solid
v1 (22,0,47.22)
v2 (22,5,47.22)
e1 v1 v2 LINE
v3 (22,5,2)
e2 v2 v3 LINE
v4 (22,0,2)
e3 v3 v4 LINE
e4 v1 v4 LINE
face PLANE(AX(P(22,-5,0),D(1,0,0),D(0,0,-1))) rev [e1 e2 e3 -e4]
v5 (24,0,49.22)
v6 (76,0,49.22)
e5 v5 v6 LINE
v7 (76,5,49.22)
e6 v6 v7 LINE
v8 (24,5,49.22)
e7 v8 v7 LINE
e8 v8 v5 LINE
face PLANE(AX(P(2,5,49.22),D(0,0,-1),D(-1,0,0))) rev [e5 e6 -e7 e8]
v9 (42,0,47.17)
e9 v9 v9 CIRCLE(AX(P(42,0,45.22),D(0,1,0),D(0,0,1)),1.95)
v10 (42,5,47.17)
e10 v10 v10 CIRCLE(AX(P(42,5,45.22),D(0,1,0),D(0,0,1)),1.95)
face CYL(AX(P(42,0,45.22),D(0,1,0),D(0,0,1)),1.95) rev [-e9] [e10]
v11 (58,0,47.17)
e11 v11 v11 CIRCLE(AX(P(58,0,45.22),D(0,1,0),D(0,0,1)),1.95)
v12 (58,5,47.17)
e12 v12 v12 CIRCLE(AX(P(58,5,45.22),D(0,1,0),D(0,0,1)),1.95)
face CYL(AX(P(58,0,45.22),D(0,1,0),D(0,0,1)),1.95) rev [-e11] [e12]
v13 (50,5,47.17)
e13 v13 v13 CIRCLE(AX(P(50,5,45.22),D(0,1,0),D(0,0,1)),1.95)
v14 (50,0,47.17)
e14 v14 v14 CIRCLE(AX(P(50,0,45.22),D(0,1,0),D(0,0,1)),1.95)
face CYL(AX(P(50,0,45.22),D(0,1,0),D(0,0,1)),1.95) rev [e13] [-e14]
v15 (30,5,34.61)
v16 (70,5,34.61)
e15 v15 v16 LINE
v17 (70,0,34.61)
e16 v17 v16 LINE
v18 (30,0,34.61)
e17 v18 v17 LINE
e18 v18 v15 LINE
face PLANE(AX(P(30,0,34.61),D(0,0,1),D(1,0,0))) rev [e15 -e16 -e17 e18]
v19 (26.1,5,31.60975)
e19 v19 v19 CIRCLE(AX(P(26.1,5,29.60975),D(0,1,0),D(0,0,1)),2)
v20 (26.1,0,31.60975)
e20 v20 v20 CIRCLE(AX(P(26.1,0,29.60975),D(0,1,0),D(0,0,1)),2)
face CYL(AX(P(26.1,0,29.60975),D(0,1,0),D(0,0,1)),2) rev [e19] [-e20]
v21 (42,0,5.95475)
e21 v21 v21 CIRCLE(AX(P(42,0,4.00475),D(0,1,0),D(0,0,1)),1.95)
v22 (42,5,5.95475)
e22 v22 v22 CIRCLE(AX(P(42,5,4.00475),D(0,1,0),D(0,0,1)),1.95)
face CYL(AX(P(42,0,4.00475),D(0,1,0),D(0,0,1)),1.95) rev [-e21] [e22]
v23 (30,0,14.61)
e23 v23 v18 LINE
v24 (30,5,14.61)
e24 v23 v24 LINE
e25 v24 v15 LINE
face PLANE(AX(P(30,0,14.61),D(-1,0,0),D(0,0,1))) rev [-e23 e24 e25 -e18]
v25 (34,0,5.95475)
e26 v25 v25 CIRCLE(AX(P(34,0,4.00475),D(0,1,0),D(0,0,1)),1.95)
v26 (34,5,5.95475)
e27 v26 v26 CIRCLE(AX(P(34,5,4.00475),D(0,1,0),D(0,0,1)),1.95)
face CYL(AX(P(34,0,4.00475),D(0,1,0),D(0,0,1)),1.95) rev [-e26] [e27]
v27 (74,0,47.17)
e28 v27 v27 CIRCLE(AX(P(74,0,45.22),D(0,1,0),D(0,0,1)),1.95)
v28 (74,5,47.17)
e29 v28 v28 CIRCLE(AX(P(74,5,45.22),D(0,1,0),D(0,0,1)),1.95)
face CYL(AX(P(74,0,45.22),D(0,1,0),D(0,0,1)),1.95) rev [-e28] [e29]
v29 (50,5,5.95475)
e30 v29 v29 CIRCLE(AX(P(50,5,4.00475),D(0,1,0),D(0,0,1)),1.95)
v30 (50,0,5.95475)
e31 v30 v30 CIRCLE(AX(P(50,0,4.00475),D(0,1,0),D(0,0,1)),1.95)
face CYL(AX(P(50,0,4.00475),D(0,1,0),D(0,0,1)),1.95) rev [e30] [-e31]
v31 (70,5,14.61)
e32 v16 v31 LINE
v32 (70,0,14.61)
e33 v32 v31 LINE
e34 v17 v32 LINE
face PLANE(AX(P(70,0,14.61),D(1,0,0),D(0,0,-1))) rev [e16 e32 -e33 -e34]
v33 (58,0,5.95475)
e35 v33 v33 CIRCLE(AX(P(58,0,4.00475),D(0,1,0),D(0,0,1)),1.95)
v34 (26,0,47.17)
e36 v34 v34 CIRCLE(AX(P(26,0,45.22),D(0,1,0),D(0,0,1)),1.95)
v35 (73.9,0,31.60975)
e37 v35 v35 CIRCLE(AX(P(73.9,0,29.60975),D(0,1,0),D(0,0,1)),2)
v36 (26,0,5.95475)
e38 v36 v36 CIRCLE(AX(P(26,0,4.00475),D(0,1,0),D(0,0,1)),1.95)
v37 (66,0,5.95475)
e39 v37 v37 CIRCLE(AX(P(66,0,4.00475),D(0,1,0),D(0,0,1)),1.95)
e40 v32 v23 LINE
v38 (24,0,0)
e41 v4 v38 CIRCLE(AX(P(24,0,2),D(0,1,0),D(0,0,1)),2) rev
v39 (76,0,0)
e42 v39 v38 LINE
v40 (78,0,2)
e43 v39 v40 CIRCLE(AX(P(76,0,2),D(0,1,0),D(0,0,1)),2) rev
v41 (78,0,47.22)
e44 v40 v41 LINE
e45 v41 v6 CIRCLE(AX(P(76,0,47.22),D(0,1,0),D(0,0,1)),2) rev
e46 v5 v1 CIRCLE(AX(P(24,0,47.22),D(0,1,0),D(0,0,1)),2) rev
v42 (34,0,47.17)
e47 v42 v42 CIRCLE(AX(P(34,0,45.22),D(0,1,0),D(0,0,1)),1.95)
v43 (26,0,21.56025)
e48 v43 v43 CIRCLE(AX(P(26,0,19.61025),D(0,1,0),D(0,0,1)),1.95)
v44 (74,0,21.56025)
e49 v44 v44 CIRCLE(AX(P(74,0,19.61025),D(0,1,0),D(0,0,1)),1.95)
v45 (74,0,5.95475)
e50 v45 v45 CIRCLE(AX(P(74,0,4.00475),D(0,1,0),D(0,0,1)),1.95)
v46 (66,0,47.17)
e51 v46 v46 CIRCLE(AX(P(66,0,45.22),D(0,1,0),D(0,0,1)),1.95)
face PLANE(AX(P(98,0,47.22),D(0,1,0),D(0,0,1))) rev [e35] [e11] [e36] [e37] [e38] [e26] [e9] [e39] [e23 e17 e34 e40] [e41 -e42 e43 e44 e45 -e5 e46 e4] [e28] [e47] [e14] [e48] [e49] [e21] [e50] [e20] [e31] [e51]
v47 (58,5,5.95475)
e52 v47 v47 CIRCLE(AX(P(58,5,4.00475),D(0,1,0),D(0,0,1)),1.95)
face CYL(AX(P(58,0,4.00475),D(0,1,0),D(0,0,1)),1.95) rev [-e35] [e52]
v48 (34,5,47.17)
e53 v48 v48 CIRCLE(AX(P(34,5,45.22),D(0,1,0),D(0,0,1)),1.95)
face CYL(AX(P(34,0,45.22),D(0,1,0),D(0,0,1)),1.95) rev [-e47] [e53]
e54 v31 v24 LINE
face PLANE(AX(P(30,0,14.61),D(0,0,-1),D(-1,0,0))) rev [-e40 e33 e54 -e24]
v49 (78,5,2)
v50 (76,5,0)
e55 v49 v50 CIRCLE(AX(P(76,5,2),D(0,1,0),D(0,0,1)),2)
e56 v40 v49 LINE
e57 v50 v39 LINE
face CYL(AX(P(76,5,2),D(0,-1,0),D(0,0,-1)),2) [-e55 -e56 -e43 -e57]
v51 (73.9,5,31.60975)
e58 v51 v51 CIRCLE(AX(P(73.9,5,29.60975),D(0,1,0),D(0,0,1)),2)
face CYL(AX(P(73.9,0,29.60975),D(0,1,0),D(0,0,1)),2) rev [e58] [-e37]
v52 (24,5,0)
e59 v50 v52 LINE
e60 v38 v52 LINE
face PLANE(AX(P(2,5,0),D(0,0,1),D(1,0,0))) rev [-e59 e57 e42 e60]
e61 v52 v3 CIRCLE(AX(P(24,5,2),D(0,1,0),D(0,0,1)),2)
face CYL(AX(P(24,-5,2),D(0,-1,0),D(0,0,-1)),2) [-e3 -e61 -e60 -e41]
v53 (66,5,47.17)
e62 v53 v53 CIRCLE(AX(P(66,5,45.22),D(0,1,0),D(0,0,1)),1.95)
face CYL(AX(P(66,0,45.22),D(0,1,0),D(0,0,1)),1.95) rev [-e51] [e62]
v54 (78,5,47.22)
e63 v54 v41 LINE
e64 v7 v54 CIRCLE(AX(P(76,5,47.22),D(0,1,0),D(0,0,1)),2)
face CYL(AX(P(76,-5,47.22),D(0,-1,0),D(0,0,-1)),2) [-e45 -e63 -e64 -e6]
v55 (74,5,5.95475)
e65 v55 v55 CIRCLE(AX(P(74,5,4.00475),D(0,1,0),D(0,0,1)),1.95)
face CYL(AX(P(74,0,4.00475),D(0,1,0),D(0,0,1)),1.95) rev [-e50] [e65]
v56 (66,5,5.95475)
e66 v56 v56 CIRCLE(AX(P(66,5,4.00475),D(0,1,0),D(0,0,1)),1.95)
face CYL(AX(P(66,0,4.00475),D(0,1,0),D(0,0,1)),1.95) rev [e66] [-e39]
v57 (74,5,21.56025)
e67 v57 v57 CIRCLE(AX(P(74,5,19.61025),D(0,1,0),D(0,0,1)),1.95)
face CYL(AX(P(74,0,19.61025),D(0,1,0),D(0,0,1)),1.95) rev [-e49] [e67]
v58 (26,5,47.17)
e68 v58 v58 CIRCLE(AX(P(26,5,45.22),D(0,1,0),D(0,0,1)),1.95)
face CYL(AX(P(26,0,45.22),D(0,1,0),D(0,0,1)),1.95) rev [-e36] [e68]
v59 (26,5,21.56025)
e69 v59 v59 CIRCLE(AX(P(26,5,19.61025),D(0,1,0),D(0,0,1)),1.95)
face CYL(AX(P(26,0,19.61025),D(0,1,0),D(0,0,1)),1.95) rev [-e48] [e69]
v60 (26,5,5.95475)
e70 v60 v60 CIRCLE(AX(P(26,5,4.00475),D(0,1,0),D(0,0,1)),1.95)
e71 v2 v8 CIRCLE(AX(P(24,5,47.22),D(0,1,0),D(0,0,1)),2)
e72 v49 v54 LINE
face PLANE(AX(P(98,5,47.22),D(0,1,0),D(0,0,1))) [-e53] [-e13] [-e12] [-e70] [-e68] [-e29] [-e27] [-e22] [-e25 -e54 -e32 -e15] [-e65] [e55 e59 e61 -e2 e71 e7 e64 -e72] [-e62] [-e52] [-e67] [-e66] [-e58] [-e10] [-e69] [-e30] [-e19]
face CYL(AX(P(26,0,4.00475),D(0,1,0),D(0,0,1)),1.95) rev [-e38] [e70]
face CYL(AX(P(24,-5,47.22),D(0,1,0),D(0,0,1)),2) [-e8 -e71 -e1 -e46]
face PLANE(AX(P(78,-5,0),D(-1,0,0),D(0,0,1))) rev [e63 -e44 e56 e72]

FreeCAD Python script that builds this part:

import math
import FreeCAD as App
import Part
import Sketcher
from FreeCAD import Vector
Q = App.Units.Quantity


def edges_at(feature, points):
    """Names of the edges that pass closest to the given points."""
    edges = feature.Shape.Edges
    near = lambda p: min(range(len(edges)), key=lambda i: edges[i].distToShape(Part.Vertex(*p))[0])
    return sorted({f"Edge{near(p) + 1}" for p in points})


def add_polygon(sketch, points):
    """Adds a closed chain of lines whose ends are joined by coincident constraints."""
    first, n = sketch.GeometryCount, len(points)
    for a, b in zip(points, points[1:] + points[:1]):
        sketch.addGeometry(Part.LineSegment(App.Vector(*a, 0), App.Vector(*b, 0)), False)
    for i in range(n):
        sketch.addConstraint(Sketcher.Constraint("Coincident", first + i, 2, first + (i + 1) % n, 1))

doc = App.newDocument("Part")
body = doc.addObject("PartDesign::Body", "Body")

# Sketch on XZ plane
sketch1 = body.newObject("Sketcher::SketchObject", "Sketch")
sketch1.AttachmentSupport = (doc.getObject("XZ_Plane"), [""])
sketch1.MapMode = "FlatFace"
sketch1.addGeometry([
    Part.LineSegment(Vector(98, 0, 0), Vector(2, 0, 0)),  # 0
    Part.ArcOfCircle(Part.Circle(Vector(2, 2, 0), Vector(0, 0, 1), 2), math.radians(-180), math.radians(-90)),  # 1
    Part.LineSegment(Vector(0, 2, 0), Vector(0, 47.22, 0)),  # 2
    Part.ArcOfCircle(Part.Circle(Vector(2, 47.22, 0), Vector(0, 0, 1), 2), math.radians(90), math.radians(180)),  # 3
    Part.LineSegment(Vector(2, 49.22, 0), Vector(98, 49.22, 0)),  # 4
    Part.ArcOfCircle(Part.Circle(Vector(98, 47.22, 0), Vector(0, 0, 1), 2), math.radians(0), math.radians(90)),  # 5
    Part.LineSegment(Vector(100, 47.22, 0), Vector(100, 2, 0)),  # 6
    Part.ArcOfCircle(Part.Circle(Vector(98, 2, 0), Vector(0, 0, 1), 2), math.radians(-90), math.radians(0)),  # 7
], False)
sketch1.addConstraint([
    Sketcher.Constraint("Tangent", 0, 2, 1, 2),
    Sketcher.Constraint("Tangent", 1, 1, 2, 1),
    Sketcher.Constraint("Tangent", 2, 2, 3, 2),
    Sketcher.Constraint("Tangent", 3, 1, 4, 1),
    Sketcher.Constraint("Tangent", 4, 2, 5, 2),
    Sketcher.Constraint("Tangent", 5, 1, 6, 1),
    Sketcher.Constraint("Tangent", 6, 2, 7, 2),
    Sketcher.Constraint("Tangent", 7, 1, 0, 1),
    Sketcher.Constraint("Horizontal", 0),
    Sketcher.Constraint("Vertical", 2),
    Sketcher.Constraint("Horizontal", 4),
    Sketcher.Constraint("Vertical", 6),
    Sketcher.Constraint("Equal", 1, 3),
    Sketcher.Constraint("Equal", 3, 5),
    Sketcher.Constraint("Equal", 5, 7),
    Sketcher.Constraint("PointOnObject", 0, 2, -1),
    Sketcher.Constraint("PointOnObject", 1, 1, -2),
    Sketcher.Constraint("Radius", 1, Q("2 mm")),
    Sketcher.Constraint("DistanceX", 0, 2, 0, 1, Q("96 mm")),
    Sketcher.Constraint("DistanceY", 2, 1, 2, 2, Q("45.22 mm")),
])
pad1 = body.newObject("PartDesign::Pad", "Pad")
pad1.Profile = sketch1
pad1.Length = 5
pad1.Reversed = True

# Sketch on XZ plane
sketch2 = body.newObject("Sketcher::SketchObject", "Sketch001")
sketch2.AttachmentSupport = (doc.getObject("XZ_Plane"), [""])
sketch2.MapMode = "FlatFace"
sketch2.AttachmentOffset = App.Placement(Vector(0, 0, -5), App.Rotation())
sketch2.addGeometry(Part.Circle(Vector(90, 4.00475, 0), Vector(0, 0, 1), 1.95), False)  # 0
sketch2.addGeometry(Part.Circle(Vector(82, 4.00475, 0), Vector(0, 0, 1), 1.95), False)  # 1
sketch2.addGeometry(Part.Circle(Vector(18, 4.00475, 0), Vector(0, 0, 1), 1.95), False)  # 2
sketch2.addGeometry(Part.Circle(Vector(26, 4.00475, 0), Vector(0, 0, 1), 1.95), False)  # 3
sketch2.addGeometry(Part.Circle(Vector(34, 4.00475, 0), Vector(0, 0, 1), 1.95), False)  # 4
sketch2.addGeometry(Part.Circle(Vector(42, 4.00475, 0), Vector(0, 0, 1), 1.95), False)  # 5
sketch2.addGeometry(Part.Circle(Vector(50, 4.00475, 0), Vector(0, 0, 1), 1.95), False)  # 6
sketch2.addGeometry(Part.Circle(Vector(58, 4.00475, 0), Vector(0, 0, 1), 1.95), False)  # 7
sketch2.addGeometry(Part.Circle(Vector(66, 4.00475, 0), Vector(0, 0, 1), 1.95), False)  # 8
sketch2.addGeometry(Part.Circle(Vector(74, 4.00475, 0), Vector(0, 0, 1), 1.95), False)  # 9
sketch2.addGeometry(Part.Circle(Vector(90, 45.22, 0), Vector(0, 0, 1), 1.95), False)  # 10
sketch2.addGeometry(Part.Circle(Vector(82, 45.22, 0), Vector(0, 0, 1), 1.95), False)  # 11
sketch2.addGeometry(Part.Circle(Vector(18, 45.22, 0), Vector(0, 0, 1), 1.95), False)  # 12
sketch2.addGeometry(Part.Circle(Vector(26, 45.22, 0), Vector(0, 0, 1), 1.95), False)  # 13
sketch2.addGeometry(Part.Circle(Vector(34, 45.22, 0), Vector(0, 0, 1), 1.95), False)  # 14
sketch2.addGeometry(Part.Circle(Vector(42, 45.22, 0), Vector(0, 0, 1), 1.95), False)  # 15
sketch2.addGeometry(Part.Circle(Vector(50, 45.22, 0), Vector(0, 0, 1), 1.95), False)  # 16
sketch2.addGeometry(Part.Circle(Vector(58, 45.22, 0), Vector(0, 0, 1), 1.95), False)  # 17
sketch2.addGeometry(Part.Circle(Vector(66, 45.22, 0), Vector(0, 0, 1), 1.95), False)  # 18
sketch2.addGeometry(Part.Circle(Vector(74, 45.22, 0), Vector(0, 0, 1), 1.95), False)  # 19
add_polygon(sketch2, [(30, 14.61), (30, 34.61), (70, 34.61), (70, 14.61)])  # lines 20-23
sketch2.addConstraint([
    Sketcher.Constraint("Vertical", 20),
    Sketcher.Constraint("Horizontal", 21),
    Sketcher.Constraint("Vertical", 22),
    Sketcher.Constraint("Horizontal", 23),
    Sketcher.Constraint("Equal", 0, 1),
    Sketcher.Constraint("Equal", 1, 2),
    Sketcher.Constraint("Equal", 2, 3),
    Sketcher.Constraint("Equal", 3, 4),
    Sketcher.Constraint("Equal", 4, 5),
    Sketcher.Constraint("Equal", 5, 6),
    Sketcher.Constraint("Equal", 6, 7),
    Sketcher.Constraint("Equal", 7, 8),
    Sketcher.Constraint("Equal", 8, 9),
    Sketcher.Constraint("Equal", 9, 10),
    Sketcher.Constraint("Equal", 10, 11),
    Sketcher.Constraint("Equal", 11, 12),
    Sketcher.Constraint("Equal", 12, 13),
    Sketcher.Constraint("Equal", 13, 14),
    Sketcher.Constraint("Equal", 14, 15),
    Sketcher.Constraint("Equal", 15, 16),
    Sketcher.Constraint("Equal", 16, 17),
    Sketcher.Constraint("Equal", 17, 18),
    Sketcher.Constraint("Equal", 18, 19),
    Sketcher.Constraint("Horizontal", 0, 3, 1, 3),
    Sketcher.Constraint("Horizontal", 1, 3, 2, 3),
    Sketcher.Constraint("Horizontal", 2, 3, 3, 3),
    Sketcher.Constraint("Horizontal", 3, 3, 4, 3),
    Sketcher.Constraint("Horizontal", 4, 3, 5, 3),
    Sketcher.Constraint("Horizontal", 5, 3, 6, 3),
    Sketcher.Constraint("Horizontal", 6, 3, 7, 3),
    Sketcher.Constraint("Horizontal", 7, 3, 8, 3),
    Sketcher.Constraint("Horizontal", 8, 3, 9, 3),
    Sketcher.Constraint("Horizontal", 10, 3, 11, 3),
    Sketcher.Constraint("Horizontal", 11, 3, 12, 3),
    Sketcher.Constraint("Horizontal", 12, 3, 13, 3),
    Sketcher.Constraint("Horizontal", 13, 3, 14, 3),
    Sketcher.Constraint("Horizontal", 14, 3, 15, 3),
    Sketcher.Constraint("Horizontal", 15, 3, 16, 3),
    Sketcher.Constraint("Horizontal", 16, 3, 17, 3),
    Sketcher.Constraint("Horizontal", 17, 3, 18, 3),
    Sketcher.Constraint("Horizontal", 18, 3, 19, 3),
    Sketcher.Constraint("Vertical", 0, 3, 10, 3),
    Sketcher.Constraint("Vertical", 1, 3, 11, 3),
    Sketcher.Constraint("Vertical", 2, 3, 12, 3),
    Sketcher.Constraint("Vertical", 3, 3, 13, 3),
    Sketcher.Constraint("Vertical", 4, 3, 14, 3),
    Sketcher.Constraint("Vertical", 5, 3, 15, 3),
    Sketcher.Constraint("Vertical", 6, 3, 16, 3),
    Sketcher.Constraint("Vertical", 7, 3, 17, 3),
    Sketcher.Constraint("Vertical", 8, 3, 18, 3),
    Sketcher.Constraint("Vertical", 9, 3, 19, 3),
    Sketcher.Constraint("Diameter", 0, Q("3.9 mm")),
    Sketcher.Constraint("DistanceX", 21, 1, 21, 2, Q("40 mm")),
    Sketcher.Constraint("DistanceY", 20, 1, 20, 2, Q("20 mm")),
    Sketcher.Constraint("DistanceX", -1, 1, 0, 3, Q("90 mm")),
    Sketcher.Constraint("DistanceX", -1, 1, 1, 3, Q("82 mm")),
    Sketcher.Constraint("DistanceX", -1, 1, 2, 3, Q("18 mm")),
    Sketcher.Constraint("DistanceX", -1, 1, 3, 3, Q("26 mm")),
    Sketcher.Constraint("DistanceX", -1, 1, 4, 3, Q("34 mm")),
    Sketcher.Constraint("DistanceX", -1, 1, 5, 3, Q("42 mm")),
    Sketcher.Constraint("DistanceX", -1, 1, 6, 3, Q("50 mm")),
    Sketcher.Constraint("DistanceX", -1, 1, 7, 3, Q("58 mm")),
    Sketcher.Constraint("DistanceX", -1, 1, 8, 3, Q("66 mm")),
    Sketcher.Constraint("DistanceX", -1, 1, 9, 3, Q("74 mm")),
    Sketcher.Constraint("DistanceX", -1, 1, 20, 2, Q("30 mm")),
    Sketcher.Constraint("DistanceY", -1, 1, 10, 3, Q("45.22 mm")),
    Sketcher.Constraint("DistanceY", -1, 1, 20, 2, Q("34.61 mm")),
    Sketcher.Constraint("DistanceY", -1, 1, 0, 3, Q("4.00475 mm")),
])
pocket1 = body.newObject("PartDesign::Pocket", "Pocket")
pocket1.Profile = sketch2
pocket1.Type = "ThroughAll"
pocket1.Reversed = True

# Sketch on XZ plane
sketch3 = body.newObject("Sketcher::SketchObject", "Sketch002")
sketch3.AttachmentSupport = (doc.getObject("XZ_Plane"), [""])
sketch3.MapMode = "FlatFace"
sketch3.AttachmentOffset = App.Placement(Vector(0, 0, -5), App.Rotation())
add_polygon(sketch3, [(78, 0), (78, 49.22), (100, 49.22), (100, 0)])  # lines 0-3
add_polygon(sketch3, [(0, 0), (0, 49.22), (22, 49.22), (22, 0)])  # lines 4-7
sketch3.addConstraint([
    Sketcher.Constraint("Vertical", 0),
    Sketcher.Constraint("Horizontal", 1),
    Sketcher.Constraint("Vertical", 2),
    Sketcher.Constraint("Horizontal", 3),
    Sketcher.Constraint("Vertical", 4),
    Sketcher.Constraint("Horizontal", 5),
    Sketcher.Constraint("Vertical", 6),
    Sketcher.Constraint("Horizontal", 7),
    Sketcher.Constraint("Coincident", 7, 2, -1, 1),
    Sketcher.Constraint("PointOnObject", 2, 2, -1),
    Sketcher.Constraint("Horizontal", 1, 2, 4, 2),
    Sketcher.Constraint("Equal", 3, 5),
    Sketcher.Constraint("DistanceX", 1, 1, 1, 2, Q("22 mm")),
    Sketcher.Constraint("DistanceX", -1, 1, 0, 2, Q("78 mm")),
    Sketcher.Constraint("DistanceY", 0, 1, 0, 2, Q("49.22 mm")),
])
pocket2 = body.newObject("PartDesign::Pocket", "Pocket001")
pocket2.Profile = sketch3
pocket2.Length = 10
pocket2.Reversed = True
doc.recompute()

fillet = body.newObject("PartDesign::Fillet", "Fillet")
fillet.Base = (pocket2, edges_at(pocket2, [(22, 2.5, 0)]))
fillet.Radius = 2
doc.recompute()

fillet2 = body.newObject("PartDesign::Fillet", "Fillet001")
fillet2.Base = (fillet, edges_at(fillet, [(22, 2.5, 49.22)]))
fillet2.Radius = 2
doc.recompute()

fillet3 = body.newObject("PartDesign::Fillet", "Fillet002")
fillet3.Base = (fillet2, edges_at(fillet2, [(78, 2.5, 49.22)]))
fillet3.Radius = 2
doc.recompute()

fillet4 = body.newObject("PartDesign::Fillet", "Fillet003")
fillet4.Base = (fillet3, edges_at(fillet3, [(78, 2.5, 0)]))
fillet4.Radius = 2

# Sketch on XZ plane
sketch4 = body.newObject("Sketcher::SketchObject", "Sketch003")
sketch4.AttachmentSupport = (doc.getObject("XZ_Plane"), [""])
sketch4.MapMode = "FlatFace"
sketch4.AttachmentOffset = App.Placement(Vector(0, 0, -5), App.Rotation())
sketch4.addGeometry([
    Part.Circle(Vector(74, 19.61025, 0), Vector(0, 0, 1), 1.95),
    Part.Circle(Vector(73.9, 29.60975, 0), Vector(0, 0, 1), 2),
    Part.Circle(Vector(26, 19.61025, 0), Vector(0, 0, 1), 1.95),
    Part.Circle(Vector(26.1, 29.60975, 0), Vector(0, 0, 1), 2),
], False)
sketch4.addConstraint([
    Sketcher.Constraint("Equal", 0, 2),
    Sketcher.Constraint("Equal", 1, 3),
    Sketcher.Constraint("Horizontal", 0, 3, 2, 3),
    Sketcher.Constraint("Horizontal", 1, 3, 3, 3),
    Sketcher.Constraint("Diameter", 1, Q("4 mm")),
    Sketcher.Constraint("Diameter", 0, Q("3.9 mm")),
    Sketcher.Constraint("DistanceX", -1, 1, 0, 3, Q("74 mm")),
    Sketcher.Constraint("DistanceX", -1, 1, 2, 3, Q("26 mm")),
    Sketcher.Constraint("DistanceX", -1, 1, 1, 3, Q("73.9 mm")),
    Sketcher.Constraint("DistanceX", -1, 1, 3, 3, Q("26.1 mm")),
    Sketcher.Constraint("DistanceY", 0, 3, 1, 3, Q("9.9995 mm")),
    Sketcher.Constraint("DistanceY", -1, 1, 0, 3, Q("19.61025 mm")),
])
pocket3 = body.newObject("PartDesign::Pocket", "Pocket002")
pocket3.Profile = sketch4
pocket3.Type = "ThroughAll"
pocket3.Reversed = True

doc.recompute()
